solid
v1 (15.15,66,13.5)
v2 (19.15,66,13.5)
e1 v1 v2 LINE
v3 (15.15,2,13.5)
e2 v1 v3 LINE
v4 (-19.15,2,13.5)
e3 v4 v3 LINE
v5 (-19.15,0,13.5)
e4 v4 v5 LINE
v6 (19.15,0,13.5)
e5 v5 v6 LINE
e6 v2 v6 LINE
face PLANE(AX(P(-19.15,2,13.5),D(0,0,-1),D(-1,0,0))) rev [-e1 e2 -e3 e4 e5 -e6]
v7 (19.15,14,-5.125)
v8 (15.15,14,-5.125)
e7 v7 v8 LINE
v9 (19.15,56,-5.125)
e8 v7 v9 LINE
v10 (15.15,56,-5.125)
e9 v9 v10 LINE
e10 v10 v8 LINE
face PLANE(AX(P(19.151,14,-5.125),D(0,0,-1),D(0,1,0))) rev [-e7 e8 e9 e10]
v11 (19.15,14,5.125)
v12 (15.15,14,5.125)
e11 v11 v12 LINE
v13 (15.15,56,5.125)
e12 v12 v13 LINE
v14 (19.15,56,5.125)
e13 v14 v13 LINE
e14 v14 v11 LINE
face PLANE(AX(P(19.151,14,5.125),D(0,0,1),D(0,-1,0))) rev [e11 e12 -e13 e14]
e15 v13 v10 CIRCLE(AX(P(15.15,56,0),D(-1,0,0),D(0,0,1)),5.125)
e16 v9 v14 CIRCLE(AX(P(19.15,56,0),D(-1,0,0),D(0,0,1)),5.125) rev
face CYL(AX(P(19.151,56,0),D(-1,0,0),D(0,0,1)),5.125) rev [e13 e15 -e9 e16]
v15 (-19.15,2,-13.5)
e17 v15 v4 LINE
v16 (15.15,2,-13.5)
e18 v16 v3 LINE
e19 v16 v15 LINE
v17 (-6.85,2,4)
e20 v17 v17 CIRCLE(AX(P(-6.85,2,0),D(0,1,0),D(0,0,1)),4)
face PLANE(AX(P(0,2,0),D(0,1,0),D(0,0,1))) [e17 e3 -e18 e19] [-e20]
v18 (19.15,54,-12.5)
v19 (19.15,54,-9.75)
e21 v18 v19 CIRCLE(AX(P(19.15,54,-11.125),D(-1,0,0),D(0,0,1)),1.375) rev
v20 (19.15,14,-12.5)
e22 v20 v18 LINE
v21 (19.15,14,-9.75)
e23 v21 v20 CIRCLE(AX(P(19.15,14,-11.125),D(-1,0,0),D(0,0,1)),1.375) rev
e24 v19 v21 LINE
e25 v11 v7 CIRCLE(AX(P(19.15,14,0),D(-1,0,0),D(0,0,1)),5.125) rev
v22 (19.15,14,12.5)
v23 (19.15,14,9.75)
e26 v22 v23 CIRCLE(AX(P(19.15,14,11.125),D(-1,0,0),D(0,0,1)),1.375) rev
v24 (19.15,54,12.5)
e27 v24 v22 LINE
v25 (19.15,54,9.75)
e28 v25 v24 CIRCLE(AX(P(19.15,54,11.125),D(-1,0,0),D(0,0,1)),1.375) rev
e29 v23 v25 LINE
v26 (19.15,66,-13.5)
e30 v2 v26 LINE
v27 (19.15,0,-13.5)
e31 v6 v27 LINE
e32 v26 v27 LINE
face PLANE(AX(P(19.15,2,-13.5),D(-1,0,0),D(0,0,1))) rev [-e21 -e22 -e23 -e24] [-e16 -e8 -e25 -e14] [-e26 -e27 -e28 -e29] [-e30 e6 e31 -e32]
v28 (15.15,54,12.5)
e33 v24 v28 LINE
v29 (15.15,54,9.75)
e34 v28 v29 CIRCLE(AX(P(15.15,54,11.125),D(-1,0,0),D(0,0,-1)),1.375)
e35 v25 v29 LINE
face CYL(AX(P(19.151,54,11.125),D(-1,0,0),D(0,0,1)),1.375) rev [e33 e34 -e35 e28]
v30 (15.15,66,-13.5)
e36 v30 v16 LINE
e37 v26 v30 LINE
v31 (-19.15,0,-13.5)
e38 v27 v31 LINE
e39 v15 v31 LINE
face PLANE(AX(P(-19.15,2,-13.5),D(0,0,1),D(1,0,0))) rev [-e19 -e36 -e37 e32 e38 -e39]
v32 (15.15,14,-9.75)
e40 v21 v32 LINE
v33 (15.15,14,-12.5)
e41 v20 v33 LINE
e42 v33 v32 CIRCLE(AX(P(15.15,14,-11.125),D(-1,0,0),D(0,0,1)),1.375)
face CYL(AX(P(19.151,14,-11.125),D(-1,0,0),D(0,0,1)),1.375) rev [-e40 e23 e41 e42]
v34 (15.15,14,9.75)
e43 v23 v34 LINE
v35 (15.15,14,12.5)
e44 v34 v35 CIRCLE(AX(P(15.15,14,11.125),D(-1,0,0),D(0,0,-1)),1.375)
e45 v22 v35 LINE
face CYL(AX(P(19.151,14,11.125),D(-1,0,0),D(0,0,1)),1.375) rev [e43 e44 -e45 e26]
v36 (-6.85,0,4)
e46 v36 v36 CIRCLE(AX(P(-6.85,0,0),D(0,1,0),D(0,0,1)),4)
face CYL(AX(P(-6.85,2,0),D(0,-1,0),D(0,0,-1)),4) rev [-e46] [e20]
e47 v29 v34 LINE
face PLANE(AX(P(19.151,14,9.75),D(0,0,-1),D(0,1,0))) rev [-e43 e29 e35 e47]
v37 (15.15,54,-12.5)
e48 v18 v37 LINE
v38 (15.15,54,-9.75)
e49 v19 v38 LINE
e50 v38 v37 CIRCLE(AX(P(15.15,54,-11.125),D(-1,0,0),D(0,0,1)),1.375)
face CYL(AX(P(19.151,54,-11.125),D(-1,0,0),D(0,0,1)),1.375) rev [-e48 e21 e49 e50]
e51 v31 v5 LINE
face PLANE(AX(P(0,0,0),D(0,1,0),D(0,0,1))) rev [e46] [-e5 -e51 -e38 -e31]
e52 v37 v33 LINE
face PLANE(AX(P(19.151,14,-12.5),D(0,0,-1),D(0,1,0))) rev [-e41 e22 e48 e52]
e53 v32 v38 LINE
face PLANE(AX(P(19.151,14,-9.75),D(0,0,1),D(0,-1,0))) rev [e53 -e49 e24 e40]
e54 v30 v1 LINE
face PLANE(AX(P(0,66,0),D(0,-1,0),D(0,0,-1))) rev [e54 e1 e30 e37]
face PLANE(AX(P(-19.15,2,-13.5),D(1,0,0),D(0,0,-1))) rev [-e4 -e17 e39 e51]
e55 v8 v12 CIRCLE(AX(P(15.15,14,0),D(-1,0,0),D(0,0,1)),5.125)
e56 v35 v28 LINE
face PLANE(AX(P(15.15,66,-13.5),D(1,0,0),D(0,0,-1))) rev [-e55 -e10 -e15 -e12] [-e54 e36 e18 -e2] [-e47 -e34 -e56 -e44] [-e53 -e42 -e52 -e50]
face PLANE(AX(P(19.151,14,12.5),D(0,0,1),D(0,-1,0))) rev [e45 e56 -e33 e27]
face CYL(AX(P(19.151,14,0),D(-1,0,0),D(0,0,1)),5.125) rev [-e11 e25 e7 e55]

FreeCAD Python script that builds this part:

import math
import FreeCAD as App
import Part
import Sketcher

V = App.Vector

doc = App.newDocument("Part")
params = doc.addObject("Spreadsheet::Sheet", "Params")
for row, (alias, value) in enumerate([
    ("sketch1_diameter", "8 mm"),
    ("sketch1_height", "27 mm"),
    ("sketch1_width", "38.3 mm"),
    ("pad1_length", "2 mm"),
    ("sketch2_width", "4 mm"),
    ("sketch2_height", "27 mm"),
    ("pad2_length", "64 mm"),
    ("sketch3_width", "40 mm"),
    ("sketch4_width", "40 mm"),
    ("sketch5_width", "42 mm"),
], start=1):
    params.set(f"A{row}", alias)
    params.set(f"B{row}", "=" + value)
    params.setAlias(f"B{row}", alias)

body = doc.addObject("PartDesign::Body", "Body")

sketch1 = doc.addObject("Sketcher::SketchObject", "Sketch")
body.addObject(sketch1)
sketch1.AttachmentSupport = (doc.XZ_Plane, [""])
sketch1.MapMode = "FlatFace"
sketch1.addGeometry(Part.LineSegment(V(-19.1, -13.5, 0), V(-19.1, 13.5, 0)), False)
sketch1.addGeometry(Part.LineSegment(V(-19.1, 13.5, 0), V(19.1, 13.5, 0)), False)
sketch1.addGeometry(Part.LineSegment(V(19.1, 13.5, 0), V(19.1, -13.5, 0)), False)
sketch1.addGeometry(Part.LineSegment(V(19.1, -13.5, 0), V(-19.1, -13.5, 0)), False)
sketch1.addGeometry(Part.Circle(V(-6.8, 0, 0), V(0, 0, 1), 4), False)
sketch1.addConstraint(Sketcher.Constraint("Coincident", 0, 2, 1, 1))
sketch1.addConstraint(Sketcher.Constraint("Coincident", 1, 2, 2, 1))
sketch1.addConstraint(Sketcher.Constraint("Coincident", 2, 2, 3, 1))
sketch1.addConstraint(Sketcher.Constraint("Coincident", 3, 2, 0, 1))
sketch1.addConstraint(Sketcher.Constraint("Vertical", 0))
sketch1.addConstraint(Sketcher.Constraint("Horizontal", 1))
sketch1.addConstraint(Sketcher.Constraint("Vertical", 2))
sketch1.addConstraint(Sketcher.Constraint("Horizontal", 3))
sketch1.addConstraint(Sketcher.Constraint("Symmetric", 0, 2, 2, 2, -1, 1))
sketch1.addConstraint(Sketcher.Constraint("PointOnObject", 4, 3, -1))
sketch1.addConstraint(Sketcher.Constraint("Diameter", 4, 8.0))
sketch1.addConstraint(Sketcher.Constraint("DistanceY", 0, 1, 0, 2, 27.0))
sketch1.addConstraint(Sketcher.Constraint("DistanceX", 1, 1, 1, 2, 38.3))
sketch1.addConstraint(Sketcher.Constraint("DistanceX", 4, 3, 1, 2, 26.0))
sketch1.setExpression("Constraints[10]", "Params.sketch1_diameter")
sketch1.setExpression("Constraints[11]", "Params.sketch1_height")
sketch1.setExpression("Constraints[12]", "Params.sketch1_width")
pad1 = doc.addObject("PartDesign::Pad", "Pad")
body.addObject(pad1)
pad1.Profile = sketch1
pad1.setExpression("Length", "Params.pad1_length")
pad1.Reversed = True

sketch2 = doc.addObject("Sketcher::SketchObject", "Sketch001")
body.addObject(sketch2)
sketch2.AttachmentSupport = (doc.XZ_Plane, [""])
sketch2.MapMode = "FlatFace"
sketch2.AttachmentOffset = App.Placement(V(0, 0, -2), App.Rotation())
sketch2.addGeometry(Part.LineSegment(V(15.2, -13.5, 0), V(15.2, 13.5, 0)), False)
sketch2.addGeometry(Part.LineSegment(V(15.2, 13.5, 0), V(19.1, 13.5, 0)), False)
sketch2.addGeometry(Part.LineSegment(V(19.1, 13.5, 0), V(19.1, -13.5, 0)), False)
sketch2.addGeometry(Part.LineSegment(V(19.1, -13.5, 0), V(15.2, -13.5, 0)), False)
sketch2.addConstraint(Sketcher.Constraint("Coincident", 0, 2, 1, 1))
sketch2.addConstraint(Sketcher.Constraint("Coincident", 1, 2, 2, 1))
sketch2.addConstraint(Sketcher.Constraint("Coincident", 2, 2, 3, 1))
sketch2.addConstraint(Sketcher.Constraint("Coincident", 3, 2, 0, 1))
sketch2.addConstraint(Sketcher.Constraint("Vertical", 0))
sketch2.addConstraint(Sketcher.Constraint("Horizontal", 1))
sketch2.addConstraint(Sketcher.Constraint("Vertical", 2))
sketch2.addConstraint(Sketcher.Constraint("Horizontal", 3))
sketch2.addConstraint(Sketcher.Constraint("DistanceX", 1, 1, 1, 2, 4.0))
sketch2.addConstraint(Sketcher.Constraint("DistanceY", 0, 1, 0, 2, 27.0))
sketch2.addConstraint(Sketcher.Constraint("DistanceY", -1, 1, 0, 2, 13.5))
sketch2.addConstraint(Sketcher.Constraint("DistanceX", -1, 1, 0, 2, 15.15))
sketch2.setExpression("Constraints[8]", "Params.sketch2_width")
sketch2.setExpression("Constraints[9]", "Params.sketch2_height")
pad2 = doc.addObject("PartDesign::Pad", "Pad001")
body.addObject(pad2)
pad2.Profile = sketch2
pad2.setExpression("Length", "Params.pad2_length")
pad2.Reversed = True

sketch3 = doc.addObject("Sketcher::SketchObject", "Sketch002")
body.addObject(sketch3)
sketch3.AttachmentSupport = (doc.YZ_Plane, [""])
sketch3.MapMode = "FlatFace"
sketch3.AttachmentOffset = App.Placement(V(0, 0, 15.15), App.Rotation())
sketch3.addGeometry(Part.LineSegment(V(54, -12.5, 0), V(14, -12.5, 0)), False)
sketch3.addGeometry(Part.ArcOfCircle(Part.Circle(V(14, -11.1, 0), V(0, 0, 1), 1.4), math.radians(90), math.radians(270)), False)
sketch3.addGeometry(Part.LineSegment(V(14, -9.8, 0), V(54, -9.8, 0)), False)
sketch3.addGeometry(Part.ArcOfCircle(Part.Circle(V(54, -11.1, 0), V(0, 0, 1), 1.4), math.radians(-90), math.radians(90)), False)
sketch3.addConstraint(Sketcher.Constraint("Tangent", 0, 2, 1, 2))
sketch3.addConstraint(Sketcher.Constraint("Tangent", 1, 1, 2, 1))
sketch3.addConstraint(Sketcher.Constraint("Tangent", 2, 2, 3, 2))
sketch3.addConstraint(Sketcher.Constraint("Tangent", 3, 1, 0, 1))
sketch3.addConstraint(Sketcher.Constraint("Horizontal", 0))
sketch3.addConstraint(Sketcher.Constraint("Horizontal", 2))
sketch3.addConstraint(Sketcher.Constraint("DistanceX", 0, 2, 0, 1, 40.0))
sketch3.addConstraint(Sketcher.Constraint("DistanceX", -1, 1, 1, 3, 14.0))
sketch3.addConstraint(Sketcher.Constraint("Radius", 1, 1.375))
sketch3.addConstraint(Sketcher.Constraint("DistanceY", 0, 2, -1, 1, 12.5))
sketch3.setExpression("Constraints[6]", "Params.sketch3_width")
pocket1 = doc.addObject("PartDesign::Pocket", "Pocket")
body.addObject(pocket1)
pocket1.Profile = sketch3
pocket1.Type = "UpToFirst"
pocket1.Reversed = True

sketch4 = doc.addObject("Sketcher::SketchObject", "Sketch003")
body.addObject(sketch4)
sketch4.AttachmentSupport = (doc.YZ_Plane, [""])
sketch4.MapMode = "FlatFace"
sketch4.AttachmentOffset = App.Placement(V(0, 0, 15.15), App.Rotation())
sketch4.addGeometry(Part.LineSegment(V(14, 12.5, 0), V(54, 12.5, 0)), False)
sketch4.addGeometry(Part.ArcOfCircle(Part.Circle(V(54, 11.1, 0), V(0, 0, 1), 1.4), math.radians(-90), math.radians(90)), False)
sketch4.addGeometry(Part.LineSegment(V(54, 9.8, 0), V(14, 9.8, 0)), False)
sketch4.addGeometry(Part.ArcOfCircle(Part.Circle(V(14, 11.1, 0), V(0, 0, 1), 1.4), math.radians(90), math.radians(270)), False)
sketch4.addConstraint(Sketcher.Constraint("Tangent", 0, 2, 1, 2))
sketch4.addConstraint(Sketcher.Constraint("Tangent", 1, 1, 2, 1))
sketch4.addConstraint(Sketcher.Constraint("Tangent", 2, 2, 3, 2))
sketch4.addConstraint(Sketcher.Constraint("Tangent", 3, 1, 0, 1))
sketch4.addConstraint(Sketcher.Constraint("Horizontal", 0))
sketch4.addConstraint(Sketcher.Constraint("Horizontal", 2))
sketch4.addConstraint(Sketcher.Constraint("DistanceX", 0, 1, 0, 2, 40.0))
sketch4.addConstraint(Sketcher.Constraint("DistanceX", -1, 1, 1, 3, 54.0))
sketch4.addConstraint(Sketcher.Constraint("Radius", 1, 1.375))
sketch4.addConstraint(Sketcher.Constraint("DistanceY", -1, 1, 0, 2, 12.5))
sketch4.setExpression("Constraints[6]", "Params.sketch4_width")
pocket2 = doc.addObject("PartDesign::Pocket", "Pocket001")
body.addObject(pocket2)
pocket2.Profile = sketch4
pocket2.Type = "UpToFirst"
pocket2.Reversed = True

sketch5 = doc.addObject("Sketcher::SketchObject", "Sketch004")
body.addObject(sketch5)
sketch5.AttachmentSupport = (doc.YZ_Plane, [""])
sketch5.MapMode = "FlatFace"
sketch5.AttachmentOffset = App.Placement(V(0, 0, 15.15), App.Rotation())
sketch5.addGeometry(Part.LineSegment(V(56, -5, 0), V(14, -5, 0)), False)
sketch5.addGeometry(Part.ArcOfCircle(Part.Circle(V(14, 0, 0), V(0, 0, 1), 5), math.radians(90), math.radians(270)), False)
sketch5.addGeometry(Part.LineSegment(V(14, 5, 0), V(56, 5, 0)), False)
sketch5.addGeometry(Part.ArcOfCircle(Part.Circle(V(56, 0, 0), V(0, 0, 1), 5), math.radians(-90), math.radians(90)), False)
sketch5.addConstraint(Sketcher.Constraint("Tangent", 0, 2, 1, 2))
sketch5.addConstraint(Sketcher.Constraint("Tangent", 1, 1, 2, 1))
sketch5.addConstraint(Sketcher.Constraint("Tangent", 2, 2, 3, 2))
sketch5.addConstraint(Sketcher.Constraint("Tangent", 3, 1, 0, 1))
sketch5.addConstraint(Sketcher.Constraint("Horizontal", 0))
sketch5.addConstraint(Sketcher.Constraint("Horizontal", 2))
sketch5.addConstraint(Sketcher.Constraint("PointOnObject", 1, 3, -1))
sketch5.addConstraint(Sketcher.Constraint("DistanceX", 0, 2, 0, 1, 42.0))
sketch5.addConstraint(Sketcher.Constraint("DistanceX", -1, 1, 1, 3, 14.0))
sketch5.addConstraint(Sketcher.Constraint("Radius", 1, 5.125))
sketch5.setExpression("Constraints[7]", "Params.sketch5_width")
pocket3 = doc.addObject("PartDesign::Pocket", "Pocket002")
body.addObject(pocket3)
pocket3.Profile = sketch5
pocket3.Type = "UpToFirst"
pocket3.Reversed = True

doc.recompute()
